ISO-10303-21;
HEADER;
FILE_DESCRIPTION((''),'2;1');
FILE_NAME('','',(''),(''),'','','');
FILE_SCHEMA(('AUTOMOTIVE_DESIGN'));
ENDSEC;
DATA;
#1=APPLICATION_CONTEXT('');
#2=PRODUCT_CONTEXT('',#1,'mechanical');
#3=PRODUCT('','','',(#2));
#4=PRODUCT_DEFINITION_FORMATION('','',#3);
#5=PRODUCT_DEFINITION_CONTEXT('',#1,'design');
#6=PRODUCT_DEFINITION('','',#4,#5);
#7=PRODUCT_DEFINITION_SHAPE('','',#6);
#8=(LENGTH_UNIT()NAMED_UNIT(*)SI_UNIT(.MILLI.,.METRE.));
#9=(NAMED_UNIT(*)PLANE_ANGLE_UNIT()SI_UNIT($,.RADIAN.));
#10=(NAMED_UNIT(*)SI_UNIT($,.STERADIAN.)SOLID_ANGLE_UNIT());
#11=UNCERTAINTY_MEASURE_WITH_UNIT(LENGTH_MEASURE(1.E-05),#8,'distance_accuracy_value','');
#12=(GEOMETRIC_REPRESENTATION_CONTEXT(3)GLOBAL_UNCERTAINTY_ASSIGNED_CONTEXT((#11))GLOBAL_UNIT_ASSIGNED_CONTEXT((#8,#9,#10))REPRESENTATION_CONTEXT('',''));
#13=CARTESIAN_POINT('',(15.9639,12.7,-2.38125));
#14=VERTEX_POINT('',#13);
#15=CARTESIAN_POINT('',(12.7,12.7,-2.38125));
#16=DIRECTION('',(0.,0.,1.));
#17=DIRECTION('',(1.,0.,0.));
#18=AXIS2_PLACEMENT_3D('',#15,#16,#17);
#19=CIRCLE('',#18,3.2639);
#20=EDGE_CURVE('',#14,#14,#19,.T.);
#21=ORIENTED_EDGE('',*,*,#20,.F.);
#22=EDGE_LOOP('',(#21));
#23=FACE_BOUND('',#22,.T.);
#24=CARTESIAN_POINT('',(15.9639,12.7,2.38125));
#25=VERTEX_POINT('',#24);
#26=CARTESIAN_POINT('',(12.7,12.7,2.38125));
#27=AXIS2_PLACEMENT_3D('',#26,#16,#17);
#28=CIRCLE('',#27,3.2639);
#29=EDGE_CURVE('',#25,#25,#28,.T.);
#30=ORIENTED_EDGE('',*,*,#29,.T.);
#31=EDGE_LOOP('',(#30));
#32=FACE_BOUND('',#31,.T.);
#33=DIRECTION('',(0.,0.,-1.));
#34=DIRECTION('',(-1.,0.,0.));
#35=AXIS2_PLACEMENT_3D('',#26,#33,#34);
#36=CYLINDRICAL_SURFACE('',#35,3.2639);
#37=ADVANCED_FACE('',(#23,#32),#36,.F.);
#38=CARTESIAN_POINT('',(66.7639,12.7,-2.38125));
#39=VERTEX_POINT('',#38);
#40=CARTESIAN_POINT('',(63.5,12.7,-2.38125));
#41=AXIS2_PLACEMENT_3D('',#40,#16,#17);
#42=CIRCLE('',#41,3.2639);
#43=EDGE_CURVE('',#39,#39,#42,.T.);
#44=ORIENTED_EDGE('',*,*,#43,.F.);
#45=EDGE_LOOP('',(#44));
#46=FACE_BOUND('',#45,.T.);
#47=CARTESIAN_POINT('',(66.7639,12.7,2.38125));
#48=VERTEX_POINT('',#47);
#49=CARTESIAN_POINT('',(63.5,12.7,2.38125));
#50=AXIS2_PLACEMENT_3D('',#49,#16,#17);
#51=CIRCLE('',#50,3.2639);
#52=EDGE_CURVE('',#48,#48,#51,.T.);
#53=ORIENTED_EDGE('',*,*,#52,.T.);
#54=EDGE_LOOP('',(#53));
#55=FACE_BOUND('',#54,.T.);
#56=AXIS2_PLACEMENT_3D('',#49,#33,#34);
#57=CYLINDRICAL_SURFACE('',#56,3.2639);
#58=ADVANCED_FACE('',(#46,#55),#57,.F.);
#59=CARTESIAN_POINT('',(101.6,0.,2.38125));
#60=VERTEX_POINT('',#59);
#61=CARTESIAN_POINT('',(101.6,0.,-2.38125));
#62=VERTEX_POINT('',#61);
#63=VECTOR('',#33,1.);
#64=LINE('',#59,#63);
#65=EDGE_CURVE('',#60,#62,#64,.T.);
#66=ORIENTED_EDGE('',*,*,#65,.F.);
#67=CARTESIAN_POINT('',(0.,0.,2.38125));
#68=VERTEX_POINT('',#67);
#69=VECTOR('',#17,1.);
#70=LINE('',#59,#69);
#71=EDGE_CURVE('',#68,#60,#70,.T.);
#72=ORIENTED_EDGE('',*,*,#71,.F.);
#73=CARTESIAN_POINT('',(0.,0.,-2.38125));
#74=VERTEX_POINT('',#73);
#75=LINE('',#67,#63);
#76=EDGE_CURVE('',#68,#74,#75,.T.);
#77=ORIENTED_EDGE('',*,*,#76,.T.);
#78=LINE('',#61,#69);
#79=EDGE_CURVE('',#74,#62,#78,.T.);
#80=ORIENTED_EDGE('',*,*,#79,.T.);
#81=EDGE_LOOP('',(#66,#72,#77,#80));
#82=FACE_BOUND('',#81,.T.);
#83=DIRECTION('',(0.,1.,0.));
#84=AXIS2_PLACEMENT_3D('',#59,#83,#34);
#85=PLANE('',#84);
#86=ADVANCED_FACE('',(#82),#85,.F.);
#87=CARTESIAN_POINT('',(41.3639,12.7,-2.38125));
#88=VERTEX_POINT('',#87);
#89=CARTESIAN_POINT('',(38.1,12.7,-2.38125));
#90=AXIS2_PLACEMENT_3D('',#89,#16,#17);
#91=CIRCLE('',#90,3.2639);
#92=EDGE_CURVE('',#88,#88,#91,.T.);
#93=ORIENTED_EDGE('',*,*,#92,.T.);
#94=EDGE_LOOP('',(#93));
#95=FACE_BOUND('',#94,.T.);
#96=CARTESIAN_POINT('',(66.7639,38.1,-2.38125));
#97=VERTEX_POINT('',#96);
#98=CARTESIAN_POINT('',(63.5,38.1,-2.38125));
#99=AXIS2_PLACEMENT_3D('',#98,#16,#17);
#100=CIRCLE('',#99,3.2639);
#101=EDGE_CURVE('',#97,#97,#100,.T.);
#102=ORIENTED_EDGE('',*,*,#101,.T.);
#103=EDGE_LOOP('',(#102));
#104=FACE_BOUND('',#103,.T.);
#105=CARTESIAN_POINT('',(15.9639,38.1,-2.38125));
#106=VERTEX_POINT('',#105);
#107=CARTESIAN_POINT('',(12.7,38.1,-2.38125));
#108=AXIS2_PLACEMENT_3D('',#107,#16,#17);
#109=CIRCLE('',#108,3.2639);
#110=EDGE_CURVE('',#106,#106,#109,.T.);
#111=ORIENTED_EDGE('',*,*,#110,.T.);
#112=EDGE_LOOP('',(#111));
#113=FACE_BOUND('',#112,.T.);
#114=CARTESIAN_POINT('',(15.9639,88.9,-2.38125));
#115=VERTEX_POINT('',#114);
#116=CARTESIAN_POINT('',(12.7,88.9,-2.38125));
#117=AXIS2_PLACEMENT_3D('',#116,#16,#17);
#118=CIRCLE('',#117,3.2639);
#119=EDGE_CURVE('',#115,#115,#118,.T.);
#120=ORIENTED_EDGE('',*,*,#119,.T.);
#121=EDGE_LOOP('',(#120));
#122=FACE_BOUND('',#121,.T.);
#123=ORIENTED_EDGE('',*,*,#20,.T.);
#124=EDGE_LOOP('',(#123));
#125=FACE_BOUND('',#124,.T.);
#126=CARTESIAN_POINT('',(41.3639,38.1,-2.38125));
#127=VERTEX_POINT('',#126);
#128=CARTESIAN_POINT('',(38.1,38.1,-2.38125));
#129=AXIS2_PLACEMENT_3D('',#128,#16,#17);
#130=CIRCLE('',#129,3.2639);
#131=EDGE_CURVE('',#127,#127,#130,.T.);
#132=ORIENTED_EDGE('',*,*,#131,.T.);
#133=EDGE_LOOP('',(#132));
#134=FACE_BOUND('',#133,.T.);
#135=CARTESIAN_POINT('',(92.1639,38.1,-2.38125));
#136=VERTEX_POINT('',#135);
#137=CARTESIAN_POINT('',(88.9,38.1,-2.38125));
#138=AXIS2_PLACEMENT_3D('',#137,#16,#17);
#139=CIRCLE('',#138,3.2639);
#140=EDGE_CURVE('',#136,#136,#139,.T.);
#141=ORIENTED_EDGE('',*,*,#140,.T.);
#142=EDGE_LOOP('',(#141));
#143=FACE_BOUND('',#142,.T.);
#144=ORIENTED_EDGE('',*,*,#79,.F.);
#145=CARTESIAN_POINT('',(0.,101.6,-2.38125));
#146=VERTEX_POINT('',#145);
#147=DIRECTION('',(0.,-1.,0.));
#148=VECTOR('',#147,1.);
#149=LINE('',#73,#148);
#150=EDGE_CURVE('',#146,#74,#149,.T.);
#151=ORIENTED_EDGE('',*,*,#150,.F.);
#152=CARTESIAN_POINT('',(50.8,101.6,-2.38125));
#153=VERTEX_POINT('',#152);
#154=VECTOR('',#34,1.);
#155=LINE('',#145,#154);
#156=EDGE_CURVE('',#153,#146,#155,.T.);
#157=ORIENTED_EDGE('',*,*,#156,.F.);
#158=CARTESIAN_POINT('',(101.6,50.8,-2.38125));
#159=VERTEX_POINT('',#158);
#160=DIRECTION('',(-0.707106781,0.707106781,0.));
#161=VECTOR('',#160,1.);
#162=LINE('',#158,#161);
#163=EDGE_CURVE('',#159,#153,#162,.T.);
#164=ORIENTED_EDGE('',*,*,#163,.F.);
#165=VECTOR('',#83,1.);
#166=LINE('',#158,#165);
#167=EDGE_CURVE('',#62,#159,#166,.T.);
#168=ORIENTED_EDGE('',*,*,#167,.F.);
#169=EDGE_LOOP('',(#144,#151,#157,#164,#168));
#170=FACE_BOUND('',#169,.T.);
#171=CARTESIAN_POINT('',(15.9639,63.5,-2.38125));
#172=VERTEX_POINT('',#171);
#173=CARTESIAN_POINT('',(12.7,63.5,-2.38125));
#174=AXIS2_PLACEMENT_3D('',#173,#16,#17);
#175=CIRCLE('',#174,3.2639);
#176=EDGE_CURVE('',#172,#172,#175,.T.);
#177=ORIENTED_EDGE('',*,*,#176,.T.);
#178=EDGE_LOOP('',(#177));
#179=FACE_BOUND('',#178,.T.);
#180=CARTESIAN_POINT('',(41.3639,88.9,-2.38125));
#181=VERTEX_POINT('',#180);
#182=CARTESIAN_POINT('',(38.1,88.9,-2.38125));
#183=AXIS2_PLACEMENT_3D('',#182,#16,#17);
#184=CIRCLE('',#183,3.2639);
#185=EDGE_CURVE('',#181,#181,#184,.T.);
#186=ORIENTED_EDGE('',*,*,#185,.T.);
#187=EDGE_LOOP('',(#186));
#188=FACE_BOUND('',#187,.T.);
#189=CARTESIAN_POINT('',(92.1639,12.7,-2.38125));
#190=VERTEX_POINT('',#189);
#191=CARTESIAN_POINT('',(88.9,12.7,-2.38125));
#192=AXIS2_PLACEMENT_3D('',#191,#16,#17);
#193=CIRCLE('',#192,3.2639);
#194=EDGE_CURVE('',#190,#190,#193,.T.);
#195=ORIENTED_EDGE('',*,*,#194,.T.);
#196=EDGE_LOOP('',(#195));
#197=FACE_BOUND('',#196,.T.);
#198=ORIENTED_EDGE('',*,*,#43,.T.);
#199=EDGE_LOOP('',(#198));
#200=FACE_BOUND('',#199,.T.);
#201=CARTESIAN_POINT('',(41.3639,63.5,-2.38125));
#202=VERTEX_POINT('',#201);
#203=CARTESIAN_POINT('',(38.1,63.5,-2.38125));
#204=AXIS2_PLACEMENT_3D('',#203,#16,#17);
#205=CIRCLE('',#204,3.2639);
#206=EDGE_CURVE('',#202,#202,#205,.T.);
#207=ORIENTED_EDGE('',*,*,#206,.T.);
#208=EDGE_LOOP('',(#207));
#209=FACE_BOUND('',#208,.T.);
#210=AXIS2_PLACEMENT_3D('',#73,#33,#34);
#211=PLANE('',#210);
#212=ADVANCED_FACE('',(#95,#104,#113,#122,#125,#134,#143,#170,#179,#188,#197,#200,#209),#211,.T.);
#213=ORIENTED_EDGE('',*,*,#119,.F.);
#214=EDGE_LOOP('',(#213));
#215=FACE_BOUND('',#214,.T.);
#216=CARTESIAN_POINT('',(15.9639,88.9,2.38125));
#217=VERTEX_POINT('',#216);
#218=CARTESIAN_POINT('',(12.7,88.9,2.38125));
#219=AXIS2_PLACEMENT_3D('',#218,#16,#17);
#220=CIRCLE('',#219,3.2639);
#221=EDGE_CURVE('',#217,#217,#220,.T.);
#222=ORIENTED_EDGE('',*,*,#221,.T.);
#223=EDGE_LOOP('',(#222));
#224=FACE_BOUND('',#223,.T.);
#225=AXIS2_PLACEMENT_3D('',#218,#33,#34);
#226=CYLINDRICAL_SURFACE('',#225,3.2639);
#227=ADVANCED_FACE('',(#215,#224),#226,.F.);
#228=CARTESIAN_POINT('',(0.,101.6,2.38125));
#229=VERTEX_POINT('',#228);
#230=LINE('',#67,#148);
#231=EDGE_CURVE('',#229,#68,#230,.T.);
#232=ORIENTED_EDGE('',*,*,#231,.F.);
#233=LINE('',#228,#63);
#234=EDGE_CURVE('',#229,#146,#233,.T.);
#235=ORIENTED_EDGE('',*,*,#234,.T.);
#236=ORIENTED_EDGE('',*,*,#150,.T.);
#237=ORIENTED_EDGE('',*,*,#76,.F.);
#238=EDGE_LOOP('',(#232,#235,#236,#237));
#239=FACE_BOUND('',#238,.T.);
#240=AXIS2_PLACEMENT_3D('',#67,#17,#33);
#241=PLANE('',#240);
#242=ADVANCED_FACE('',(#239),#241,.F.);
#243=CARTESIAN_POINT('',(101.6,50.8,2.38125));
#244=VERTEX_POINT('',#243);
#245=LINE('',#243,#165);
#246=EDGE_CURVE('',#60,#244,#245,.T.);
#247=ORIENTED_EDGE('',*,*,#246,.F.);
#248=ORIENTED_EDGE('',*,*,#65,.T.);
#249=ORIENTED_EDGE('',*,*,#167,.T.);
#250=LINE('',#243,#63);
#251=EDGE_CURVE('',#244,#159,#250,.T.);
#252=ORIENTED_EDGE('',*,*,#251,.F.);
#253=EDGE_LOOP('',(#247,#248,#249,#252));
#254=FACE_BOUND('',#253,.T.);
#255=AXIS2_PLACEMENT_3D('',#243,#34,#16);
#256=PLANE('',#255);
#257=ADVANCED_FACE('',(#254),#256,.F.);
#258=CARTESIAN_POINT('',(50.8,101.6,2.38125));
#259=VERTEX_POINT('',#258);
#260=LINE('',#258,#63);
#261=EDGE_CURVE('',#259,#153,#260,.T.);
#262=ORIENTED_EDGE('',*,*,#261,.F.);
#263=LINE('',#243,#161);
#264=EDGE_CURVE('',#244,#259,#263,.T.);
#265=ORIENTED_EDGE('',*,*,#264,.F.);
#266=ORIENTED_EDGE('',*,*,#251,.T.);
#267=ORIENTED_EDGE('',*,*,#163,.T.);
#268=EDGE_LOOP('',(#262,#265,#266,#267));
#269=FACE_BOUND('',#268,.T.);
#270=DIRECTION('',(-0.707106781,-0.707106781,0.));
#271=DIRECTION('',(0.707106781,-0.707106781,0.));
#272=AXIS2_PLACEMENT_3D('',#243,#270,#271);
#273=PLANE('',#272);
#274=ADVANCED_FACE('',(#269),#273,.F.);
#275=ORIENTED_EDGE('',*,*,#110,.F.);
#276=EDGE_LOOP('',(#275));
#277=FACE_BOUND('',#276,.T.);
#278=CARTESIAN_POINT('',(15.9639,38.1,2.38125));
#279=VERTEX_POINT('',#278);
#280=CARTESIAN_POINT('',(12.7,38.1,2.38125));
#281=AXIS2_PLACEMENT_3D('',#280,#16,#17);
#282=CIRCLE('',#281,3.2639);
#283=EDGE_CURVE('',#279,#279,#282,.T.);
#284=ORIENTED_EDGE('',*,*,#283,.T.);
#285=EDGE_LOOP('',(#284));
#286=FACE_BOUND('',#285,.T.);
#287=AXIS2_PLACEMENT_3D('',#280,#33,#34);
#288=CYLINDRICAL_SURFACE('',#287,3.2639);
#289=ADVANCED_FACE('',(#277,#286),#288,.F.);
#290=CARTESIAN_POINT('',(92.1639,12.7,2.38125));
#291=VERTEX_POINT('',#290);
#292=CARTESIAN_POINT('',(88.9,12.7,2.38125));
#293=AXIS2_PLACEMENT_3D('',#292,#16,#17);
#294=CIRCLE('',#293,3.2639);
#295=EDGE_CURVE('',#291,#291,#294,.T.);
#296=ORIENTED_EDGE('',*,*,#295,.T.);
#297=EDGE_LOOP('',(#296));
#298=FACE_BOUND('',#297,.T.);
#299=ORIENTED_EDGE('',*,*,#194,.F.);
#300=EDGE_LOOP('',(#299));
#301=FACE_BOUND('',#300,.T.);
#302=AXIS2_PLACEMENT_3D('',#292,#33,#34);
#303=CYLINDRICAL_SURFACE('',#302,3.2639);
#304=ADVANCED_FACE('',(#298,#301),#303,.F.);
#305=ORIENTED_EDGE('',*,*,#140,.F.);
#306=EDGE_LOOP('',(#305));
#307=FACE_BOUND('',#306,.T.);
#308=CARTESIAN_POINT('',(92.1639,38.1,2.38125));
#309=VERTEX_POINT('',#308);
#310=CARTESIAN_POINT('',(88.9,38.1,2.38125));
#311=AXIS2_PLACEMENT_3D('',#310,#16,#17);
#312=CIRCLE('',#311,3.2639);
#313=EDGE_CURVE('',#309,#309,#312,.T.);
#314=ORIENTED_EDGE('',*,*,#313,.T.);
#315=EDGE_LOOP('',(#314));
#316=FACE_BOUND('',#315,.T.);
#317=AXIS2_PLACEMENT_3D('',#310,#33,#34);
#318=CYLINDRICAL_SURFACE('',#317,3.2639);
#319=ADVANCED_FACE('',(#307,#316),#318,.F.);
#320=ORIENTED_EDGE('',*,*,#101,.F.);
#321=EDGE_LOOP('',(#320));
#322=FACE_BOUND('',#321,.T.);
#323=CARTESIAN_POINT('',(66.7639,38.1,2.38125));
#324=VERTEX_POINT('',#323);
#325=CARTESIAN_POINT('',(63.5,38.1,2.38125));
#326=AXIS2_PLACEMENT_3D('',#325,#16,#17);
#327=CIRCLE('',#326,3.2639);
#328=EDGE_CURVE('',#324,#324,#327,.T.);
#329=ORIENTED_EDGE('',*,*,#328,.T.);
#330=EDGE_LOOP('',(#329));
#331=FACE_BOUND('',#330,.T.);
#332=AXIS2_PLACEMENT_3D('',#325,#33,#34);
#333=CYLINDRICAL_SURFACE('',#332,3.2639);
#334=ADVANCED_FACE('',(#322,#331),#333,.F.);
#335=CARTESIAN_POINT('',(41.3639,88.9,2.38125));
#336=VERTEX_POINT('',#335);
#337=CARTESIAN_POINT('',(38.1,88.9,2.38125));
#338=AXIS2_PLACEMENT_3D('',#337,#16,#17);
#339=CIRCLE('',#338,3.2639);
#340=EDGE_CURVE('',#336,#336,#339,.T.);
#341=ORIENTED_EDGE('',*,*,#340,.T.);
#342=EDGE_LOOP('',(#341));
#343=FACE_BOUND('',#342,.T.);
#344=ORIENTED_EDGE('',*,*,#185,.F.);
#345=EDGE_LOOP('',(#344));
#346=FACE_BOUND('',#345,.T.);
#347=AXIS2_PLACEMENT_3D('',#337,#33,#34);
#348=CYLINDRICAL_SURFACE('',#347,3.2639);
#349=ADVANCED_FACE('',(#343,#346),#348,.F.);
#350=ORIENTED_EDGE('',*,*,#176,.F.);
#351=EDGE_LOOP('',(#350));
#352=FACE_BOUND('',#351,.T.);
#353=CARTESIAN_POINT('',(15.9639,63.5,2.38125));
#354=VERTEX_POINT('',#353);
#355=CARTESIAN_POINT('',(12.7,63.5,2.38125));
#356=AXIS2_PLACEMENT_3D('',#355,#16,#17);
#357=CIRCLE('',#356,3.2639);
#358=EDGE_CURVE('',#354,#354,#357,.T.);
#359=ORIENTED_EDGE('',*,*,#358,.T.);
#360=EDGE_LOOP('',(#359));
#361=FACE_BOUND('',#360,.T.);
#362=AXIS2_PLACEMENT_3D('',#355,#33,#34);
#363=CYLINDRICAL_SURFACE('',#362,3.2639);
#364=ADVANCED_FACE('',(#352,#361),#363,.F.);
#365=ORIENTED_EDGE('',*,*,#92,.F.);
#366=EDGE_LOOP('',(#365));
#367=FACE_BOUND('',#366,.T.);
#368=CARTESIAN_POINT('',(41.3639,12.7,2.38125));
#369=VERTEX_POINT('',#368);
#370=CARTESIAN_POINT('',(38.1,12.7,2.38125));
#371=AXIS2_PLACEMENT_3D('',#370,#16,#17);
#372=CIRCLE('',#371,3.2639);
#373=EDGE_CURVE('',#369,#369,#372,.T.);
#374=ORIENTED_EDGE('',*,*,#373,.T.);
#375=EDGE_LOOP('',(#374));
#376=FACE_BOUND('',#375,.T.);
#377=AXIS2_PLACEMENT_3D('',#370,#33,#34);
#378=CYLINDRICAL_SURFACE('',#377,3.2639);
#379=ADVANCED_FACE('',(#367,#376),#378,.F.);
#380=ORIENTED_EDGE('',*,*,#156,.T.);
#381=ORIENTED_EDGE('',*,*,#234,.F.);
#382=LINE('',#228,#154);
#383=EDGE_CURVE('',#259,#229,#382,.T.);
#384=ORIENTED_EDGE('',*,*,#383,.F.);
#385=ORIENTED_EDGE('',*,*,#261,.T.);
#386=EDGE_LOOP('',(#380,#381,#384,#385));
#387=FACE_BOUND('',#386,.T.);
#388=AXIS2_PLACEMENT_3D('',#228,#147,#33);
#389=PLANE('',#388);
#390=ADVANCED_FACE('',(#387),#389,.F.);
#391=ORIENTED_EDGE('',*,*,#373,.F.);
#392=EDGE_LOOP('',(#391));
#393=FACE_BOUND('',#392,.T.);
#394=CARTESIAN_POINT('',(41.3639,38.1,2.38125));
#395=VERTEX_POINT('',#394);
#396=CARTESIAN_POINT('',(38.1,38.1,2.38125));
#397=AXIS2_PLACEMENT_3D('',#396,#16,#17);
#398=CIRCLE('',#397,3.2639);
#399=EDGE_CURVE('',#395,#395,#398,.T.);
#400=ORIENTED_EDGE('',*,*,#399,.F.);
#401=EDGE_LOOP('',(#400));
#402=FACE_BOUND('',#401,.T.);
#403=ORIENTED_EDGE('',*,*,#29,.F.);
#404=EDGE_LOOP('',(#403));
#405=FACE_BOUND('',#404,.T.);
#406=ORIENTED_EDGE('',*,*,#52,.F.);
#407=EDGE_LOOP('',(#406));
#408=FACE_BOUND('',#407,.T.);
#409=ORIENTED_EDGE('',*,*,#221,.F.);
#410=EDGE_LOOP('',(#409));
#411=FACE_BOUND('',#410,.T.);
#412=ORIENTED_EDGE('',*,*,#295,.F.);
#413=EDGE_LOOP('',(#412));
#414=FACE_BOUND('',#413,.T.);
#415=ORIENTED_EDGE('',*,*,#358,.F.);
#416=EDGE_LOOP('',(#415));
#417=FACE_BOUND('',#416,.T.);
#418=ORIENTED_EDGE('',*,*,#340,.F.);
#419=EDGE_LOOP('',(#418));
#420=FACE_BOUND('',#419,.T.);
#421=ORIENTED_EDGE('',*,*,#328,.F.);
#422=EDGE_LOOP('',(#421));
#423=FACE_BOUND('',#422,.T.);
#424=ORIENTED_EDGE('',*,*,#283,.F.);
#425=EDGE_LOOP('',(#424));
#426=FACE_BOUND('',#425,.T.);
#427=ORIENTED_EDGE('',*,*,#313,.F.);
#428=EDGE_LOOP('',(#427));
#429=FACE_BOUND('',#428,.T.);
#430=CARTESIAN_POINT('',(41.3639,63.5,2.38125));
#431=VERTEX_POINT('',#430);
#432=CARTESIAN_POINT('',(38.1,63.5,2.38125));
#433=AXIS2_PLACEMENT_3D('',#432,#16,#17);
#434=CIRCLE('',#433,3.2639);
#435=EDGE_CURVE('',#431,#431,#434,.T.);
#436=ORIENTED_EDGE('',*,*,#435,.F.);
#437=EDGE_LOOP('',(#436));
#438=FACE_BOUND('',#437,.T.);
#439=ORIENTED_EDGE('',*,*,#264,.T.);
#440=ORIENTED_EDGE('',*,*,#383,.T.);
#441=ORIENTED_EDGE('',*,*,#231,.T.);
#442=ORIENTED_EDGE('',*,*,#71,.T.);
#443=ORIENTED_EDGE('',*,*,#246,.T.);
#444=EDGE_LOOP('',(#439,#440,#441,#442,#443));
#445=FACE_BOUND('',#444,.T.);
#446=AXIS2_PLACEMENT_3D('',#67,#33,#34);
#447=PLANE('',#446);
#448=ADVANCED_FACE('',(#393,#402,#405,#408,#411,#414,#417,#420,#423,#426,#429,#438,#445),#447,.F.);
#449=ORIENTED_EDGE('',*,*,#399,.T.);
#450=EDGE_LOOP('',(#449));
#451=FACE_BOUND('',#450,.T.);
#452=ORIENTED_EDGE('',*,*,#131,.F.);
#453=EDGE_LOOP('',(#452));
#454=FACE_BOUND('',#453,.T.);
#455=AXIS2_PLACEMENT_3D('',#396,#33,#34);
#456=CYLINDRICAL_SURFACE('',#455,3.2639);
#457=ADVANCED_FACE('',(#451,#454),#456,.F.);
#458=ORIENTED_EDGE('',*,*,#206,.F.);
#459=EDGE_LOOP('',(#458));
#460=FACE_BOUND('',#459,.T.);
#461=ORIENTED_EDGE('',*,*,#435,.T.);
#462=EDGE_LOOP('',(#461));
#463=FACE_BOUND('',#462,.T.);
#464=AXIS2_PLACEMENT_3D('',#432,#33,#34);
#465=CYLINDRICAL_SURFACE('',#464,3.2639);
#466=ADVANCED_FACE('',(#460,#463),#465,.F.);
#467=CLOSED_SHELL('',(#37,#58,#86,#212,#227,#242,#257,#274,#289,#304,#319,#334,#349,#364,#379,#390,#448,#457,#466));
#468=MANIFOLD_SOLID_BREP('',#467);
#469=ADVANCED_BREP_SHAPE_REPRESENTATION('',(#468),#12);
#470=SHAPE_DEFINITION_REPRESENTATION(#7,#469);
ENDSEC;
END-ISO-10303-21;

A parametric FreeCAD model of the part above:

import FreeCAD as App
import Part
import Sketcher
Q = App.Units.Quantity

doc = App.newDocument("Part")
body = doc.addObject("PartDesign::Body", "Body")

# Sketch on XY plane
sketch1 = doc.addObject("Sketcher::SketchObject", "Sketch")
body.addObject(sketch1)
sketch1.AttachmentSupport = (doc.XY_Plane, [""])
sketch1.MapMode = "FlatFace"
sketch1.addGeometry([
    Part.LineSegment(App.Vector(0, 101.6, 0), App.Vector(0, 0, 0)),  # 0
    Part.LineSegment(App.Vector(0, 0, 0), App.Vector(101.6, 0, 0)),  # 1
    Part.LineSegment(App.Vector(101.6, 0, 0), App.Vector(101.6, 50.8, 0)),  # 2
    Part.LineSegment(App.Vector(101.6, 50.8, 0), App.Vector(50.8, 101.6, 0)),  # 3
    Part.LineSegment(App.Vector(50.8, 101.6, 0), App.Vector(0, 101.6, 0)),  # 4
    Part.Circle(App.Vector(88.9, 12.7, 0), App.Vector(0, 0, 1), 3.3),  # 5
    Part.Circle(App.Vector(63.5, 12.7, 0), App.Vector(0, 0, 1), 3.3),  # 6
    Part.Circle(App.Vector(88.9, 38.1, 0), App.Vector(0, 0, 1), 3.3),  # 7
    Part.Circle(App.Vector(63.5, 38.1, 0), App.Vector(0, 0, 1), 3.3),  # 8
    Part.Circle(App.Vector(38.1, 12.7, 0), App.Vector(0, 0, 1), 3.3),  # 9
    Part.Circle(App.Vector(12.7, 12.7, 0), App.Vector(0, 0, 1), 3.3),  # 10
    Part.Circle(App.Vector(38.1, 38.1, 0), App.Vector(0, 0, 1), 3.3),  # 11
    Part.Circle(App.Vector(12.7, 38.1, 0), App.Vector(0, 0, 1), 3.3),  # 12
    Part.Circle(App.Vector(38.1, 63.5, 0), App.Vector(0, 0, 1), 3.3),  # 13
    Part.Circle(App.Vector(12.7, 63.5, 0), App.Vector(0, 0, 1), 3.3),  # 14
    Part.Circle(App.Vector(38.1, 88.9, 0), App.Vector(0, 0, 1), 3.3),  # 15
    Part.Circle(App.Vector(12.7, 88.9, 0), App.Vector(0, 0, 1), 3.3),  # 16
], False)
sketch1.addConstraint([
    Sketcher.Constraint("Coincident", 0, 2, 1, 1),
    Sketcher.Constraint("Coincident", 1, 2, 2, 1),
    Sketcher.Constraint("Coincident", 2, 2, 3, 1),
    Sketcher.Constraint("Coincident", 3, 2, 4, 1),
    Sketcher.Constraint("Coincident", 4, 2, 0, 1),
    Sketcher.Constraint("Vertical", 0),
    Sketcher.Constraint("Horizontal", 1),
    Sketcher.Constraint("Vertical", 2),
    Sketcher.Constraint("Horizontal", 4),
    Sketcher.Constraint("Coincident", 0, 2, -1, 1),
    Sketcher.Constraint("Equal", 5, 6),
    Sketcher.Constraint("Equal", 6, 7),
    Sketcher.Constraint("Equal", 7, 8),
    Sketcher.Constraint("Equal", 8, 9),
    Sketcher.Constraint("Equal", 9, 10),
    Sketcher.Constraint("Equal", 10, 11),
    Sketcher.Constraint("Equal", 11, 12),
    Sketcher.Constraint("Equal", 12, 13),
    Sketcher.Constraint("Equal", 13, 14),
    Sketcher.Constraint("Equal", 14, 15),
    Sketcher.Constraint("Equal", 15, 16),
    Sketcher.Constraint("Horizontal", 5, 3, 6, 3),
    Sketcher.Constraint("Horizontal", 7, 3, 8, 3),
    Sketcher.Constraint("Horizontal", 6, 3, 9, 3),
    Sketcher.Constraint("Horizontal", 9, 3, 10, 3),
    Sketcher.Constraint("Horizontal", 8, 3, 11, 3),
    Sketcher.Constraint("Horizontal", 11, 3, 12, 3),
    Sketcher.Constraint("Horizontal", 13, 3, 14, 3),
    Sketcher.Constraint("Horizontal", 15, 3, 16, 3),
    Sketcher.Constraint("Vertical", 5, 3, 7, 3),
    Sketcher.Constraint("Vertical", 6, 3, 8, 3),
    Sketcher.Constraint("Vertical", 9, 3, 11, 3),
    Sketcher.Constraint("Vertical", 10, 3, 12, 3),
    Sketcher.Constraint("Vertical", 11, 3, 13, 3),
    Sketcher.Constraint("Vertical", 12, 3, 14, 3),
    Sketcher.Constraint("Vertical", 13, 3, 15, 3),
    Sketcher.Constraint("Vertical", 14, 3, 16, 3),
    Sketcher.Constraint("Equal", 1, 0),
    Sketcher.Constraint("Equal", 4, 2),
    Sketcher.Constraint("DistanceX", 1, 1, 1, 2, Q("4 in")),
    Sketcher.Constraint("DistanceX", 4, 2, 4, 1, Q("2 in")),
    Sketcher.Constraint("Diameter", 5, Q("0.257 in")),
    Sketcher.Constraint("DistanceX", 6, 3, 5, 3, Q("1 in")),
    Sketcher.Constraint("DistanceY", 5, 3, 7, 3, Q("1 in")),
    Sketcher.Constraint("DistanceX", 9, 3, 6, 3, Q("1 in")),
    Sketcher.Constraint("DistanceX", 10, 3, 9, 3, Q("1 in")),
    Sketcher.Constraint("DistanceY", 11, 3, 13, 3, Q("1 in")),
    Sketcher.Constraint("DistanceY", 13, 3, 15, 3, Q("1 in")),
    Sketcher.Constraint("DistanceX", -1, 1, 5, 3, Q("3.5 in")),
    Sketcher.Constraint("DistanceY", -1, 1, 5, 3, Q("0.5 in")),
])
pad1 = doc.addObject("PartDesign::Pad", "Pad")
body.addObject(pad1)
pad1.Profile = sketch1
pad1.Length = Q("0.1875 in")
pad1.Midplane = True

doc.recompute()
